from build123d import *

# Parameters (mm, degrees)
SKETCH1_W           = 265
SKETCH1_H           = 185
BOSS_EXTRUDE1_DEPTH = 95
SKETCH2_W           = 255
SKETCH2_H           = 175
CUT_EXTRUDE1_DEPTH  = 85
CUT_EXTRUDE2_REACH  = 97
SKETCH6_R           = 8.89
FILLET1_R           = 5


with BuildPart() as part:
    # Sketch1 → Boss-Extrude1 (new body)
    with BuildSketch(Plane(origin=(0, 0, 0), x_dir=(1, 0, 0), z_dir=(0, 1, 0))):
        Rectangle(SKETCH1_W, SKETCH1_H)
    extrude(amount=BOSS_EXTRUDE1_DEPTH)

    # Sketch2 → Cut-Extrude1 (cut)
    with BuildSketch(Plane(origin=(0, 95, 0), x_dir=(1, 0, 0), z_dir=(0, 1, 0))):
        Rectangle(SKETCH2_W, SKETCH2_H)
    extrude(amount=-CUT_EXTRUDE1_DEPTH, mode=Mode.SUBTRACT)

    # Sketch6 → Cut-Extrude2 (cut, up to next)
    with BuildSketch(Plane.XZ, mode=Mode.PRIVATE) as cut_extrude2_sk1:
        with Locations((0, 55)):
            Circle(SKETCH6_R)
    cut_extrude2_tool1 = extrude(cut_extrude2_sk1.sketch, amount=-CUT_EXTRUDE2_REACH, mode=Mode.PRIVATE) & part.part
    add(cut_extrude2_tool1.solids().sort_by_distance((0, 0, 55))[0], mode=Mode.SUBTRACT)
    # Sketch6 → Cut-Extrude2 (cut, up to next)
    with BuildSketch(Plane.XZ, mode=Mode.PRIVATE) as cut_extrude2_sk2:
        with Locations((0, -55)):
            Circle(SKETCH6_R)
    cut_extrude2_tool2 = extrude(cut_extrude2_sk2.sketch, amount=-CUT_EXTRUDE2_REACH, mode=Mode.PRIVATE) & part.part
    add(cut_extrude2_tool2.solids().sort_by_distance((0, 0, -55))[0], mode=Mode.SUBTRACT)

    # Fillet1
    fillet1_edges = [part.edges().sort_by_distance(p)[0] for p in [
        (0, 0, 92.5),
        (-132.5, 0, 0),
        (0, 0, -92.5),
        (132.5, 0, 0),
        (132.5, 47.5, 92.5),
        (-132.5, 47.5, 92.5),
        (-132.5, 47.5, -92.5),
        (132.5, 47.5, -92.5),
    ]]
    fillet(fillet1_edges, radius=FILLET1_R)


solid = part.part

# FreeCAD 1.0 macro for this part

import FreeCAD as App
import Part
import Sketcher
from FreeCAD import Vector
Q = App.Units.Quantity


def edges_at(feature, points):
    """Names of the edges that pass closest to the given points."""
    edges = feature.Shape.Edges
    near = lambda p: min(range(len(edges)), key=lambda i: edges[i].distToShape(Part.Vertex(*p))[0])
    return sorted({f"Edge{near(p) + 1}" for p in points})

doc = App.newDocument("Part")
body = doc.addObject("PartDesign::Body", "Body")

# Sketch on XZ plane
sketch1 = doc.addObject("Sketcher::SketchObject", "Sketch")
body.addObject(sketch1)
sketch1.AttachmentSupport = (doc.XZ_Plane, [""])
sketch1.MapMode = "FlatFace"
sketch1.addGeometry([
    Part.LineSegment(Vector(-132, -92, 0), Vector(-132, 92, 0)),
    Part.LineSegment(Vector(-132, 92, 0), Vector(132, 92, 0)),
    Part.LineSegment(Vector(132, 92, 0), Vector(132, -92, 0)),
    Part.LineSegment(Vector(132, -92, 0), Vector(-132, -92, 0)),
], False)
sketch1.addConstraint([
    Sketcher.Constraint("Coincident", 0, 2, 1, 1),
    Sketcher.Constraint("Coincident", 1, 2, 2, 1),
    Sketcher.Constraint("Coincident", 2, 2, 3, 1),
    Sketcher.Constraint("Coincident", 3, 2, 0, 1),
    Sketcher.Constraint("Vertical", 0),
    Sketcher.Constraint("Horizontal", 1),
    Sketcher.Constraint("Vertical", 2),
    Sketcher.Constraint("Horizontal", 3),
    Sketcher.Constraint("Symmetric", 0, 2, 2, 2, -1, 1),
    Sketcher.Constraint("DistanceX", 1, 1, 1, 2, Q("265 mm")),
    Sketcher.Constraint("DistanceY", 0, 1, 0, 2, Q("185 mm")),
])
pad1 = doc.addObject("PartDesign::Pad", "Pad")
body.addObject(pad1)
pad1.Profile = sketch1
pad1.Length = 95
pad1.Reversed = True

# Sketch on XZ plane
sketch2 = doc.addObject("Sketcher::SketchObject", "Sketch001")
body.addObject(sketch2)
sketch2.AttachmentSupport = (doc.XZ_Plane, [""])
sketch2.MapMode = "FlatFace"
sketch2.AttachmentOffset = App.Placement(Vector(0, 0, -95), App.Rotation())
sketch2.addGeometry([
    Part.LineSegment(Vector(-128, -88, 0), Vector(-128, 88, 0)),
    Part.LineSegment(Vector(-128, 88, 0), Vector(128, 88, 0)),
    Part.LineSegment(Vector(128, 88, 0), Vector(128, -88, 0)),
    Part.LineSegment(Vector(128, -88, 0), Vector(-128, -88, 0)),
], False)
sketch2.addConstraint([
    Sketcher.Constraint("Coincident", 0, 2, 1, 1),
    Sketcher.Constraint("Coincident", 1, 2, 2, 1),
    Sketcher.Constraint("Coincident", 2, 2, 3, 1),
    Sketcher.Constraint("Coincident", 3, 2, 0, 1),
    Sketcher.Constraint("Vertical", 0),
    Sketcher.Constraint("Horizontal", 1),
    Sketcher.Constraint("Vertical", 2),
    Sketcher.Constraint("Horizontal", 3),
    Sketcher.Constraint("Symmetric", 0, 2, 2, 2, -1, 1),
    Sketcher.Constraint("DistanceX", 1, 1, 1, 2, Q("255 mm")),
    Sketcher.Constraint("DistanceY", 0, 1, 0, 2, Q("175 mm")),
])
pocket1 = doc.addObject("PartDesign::Pocket", "Pocket")
body.addObject(pocket1)
pocket1.Profile = sketch2
pocket1.Length = 85
pocket1.Reversed = True

# Sketch on XZ plane
sketch3 = doc.addObject("Sketcher::SketchObject", "Sketch002")
body.addObject(sketch3)
sketch3.AttachmentSupport = (doc.XZ_Plane, [""])
sketch3.MapMode = "FlatFace"
sketch3.addGeometry(Part.Circle(Vector(0, 55, 0), Vector(0, 0, 1), 9), False)
sketch3.addConstraint([
    Sketcher.Constraint("PointOnObject", 0, 3, -2),
    Sketcher.Constraint("Diameter", 0, Q("17.78 mm")),
    Sketcher.Constraint("DistanceY", -1, 1, 0, 3, Q("55 mm")),
])
pocket2 = doc.addObject("PartDesign::Pocket", "Pocket001")
body.addObject(pocket2)
pocket2.Profile = sketch3
pocket2.Type = "UpToFirst"

# Sketch on XZ plane
sketch4 = doc.addObject("Sketcher::SketchObject", "Sketch003")
body.addObject(sketch4)
sketch4.AttachmentSupport = (doc.XZ_Plane, [""])
sketch4.MapMode = "FlatFace"
sketch4.addGeometry(Part.Circle(Vector(0, -55, 0), Vector(0, 0, 1), 9), False)
sketch4.addConstraint([
    Sketcher.Constraint("PointOnObject", 0, 3, -2),
    Sketcher.Constraint("Diameter", 0, Q("17.78 mm")),
    Sketcher.Constraint("DistanceY", 0, 3, -1, 1, Q("55 mm")),
])
pocket3 = doc.addObject("PartDesign::Pocket", "Pocket002")
body.addObject(pocket3)
pocket3.Profile = sketch4
pocket3.Type = "UpToFirst"
doc.recompute()

fillet = doc.addObject("PartDesign::Fillet", "Fillet")
body.addObject(fillet)
fillet.Base = (pocket3, edges_at(pocket3, [
    (0, 0, 92.5),
    (-132.5, 0, 0),
    (0, 0, -92.5),
    (132.5, 0, 0),
    (132.5, 47.5, 92.5),
    (-132.5, 47.5, 92.5),
    (-132.5, 47.5, -92.5),
    (132.5, 47.5, -92.5),
]))
fillet.Radius = 5

doc.recompute()
